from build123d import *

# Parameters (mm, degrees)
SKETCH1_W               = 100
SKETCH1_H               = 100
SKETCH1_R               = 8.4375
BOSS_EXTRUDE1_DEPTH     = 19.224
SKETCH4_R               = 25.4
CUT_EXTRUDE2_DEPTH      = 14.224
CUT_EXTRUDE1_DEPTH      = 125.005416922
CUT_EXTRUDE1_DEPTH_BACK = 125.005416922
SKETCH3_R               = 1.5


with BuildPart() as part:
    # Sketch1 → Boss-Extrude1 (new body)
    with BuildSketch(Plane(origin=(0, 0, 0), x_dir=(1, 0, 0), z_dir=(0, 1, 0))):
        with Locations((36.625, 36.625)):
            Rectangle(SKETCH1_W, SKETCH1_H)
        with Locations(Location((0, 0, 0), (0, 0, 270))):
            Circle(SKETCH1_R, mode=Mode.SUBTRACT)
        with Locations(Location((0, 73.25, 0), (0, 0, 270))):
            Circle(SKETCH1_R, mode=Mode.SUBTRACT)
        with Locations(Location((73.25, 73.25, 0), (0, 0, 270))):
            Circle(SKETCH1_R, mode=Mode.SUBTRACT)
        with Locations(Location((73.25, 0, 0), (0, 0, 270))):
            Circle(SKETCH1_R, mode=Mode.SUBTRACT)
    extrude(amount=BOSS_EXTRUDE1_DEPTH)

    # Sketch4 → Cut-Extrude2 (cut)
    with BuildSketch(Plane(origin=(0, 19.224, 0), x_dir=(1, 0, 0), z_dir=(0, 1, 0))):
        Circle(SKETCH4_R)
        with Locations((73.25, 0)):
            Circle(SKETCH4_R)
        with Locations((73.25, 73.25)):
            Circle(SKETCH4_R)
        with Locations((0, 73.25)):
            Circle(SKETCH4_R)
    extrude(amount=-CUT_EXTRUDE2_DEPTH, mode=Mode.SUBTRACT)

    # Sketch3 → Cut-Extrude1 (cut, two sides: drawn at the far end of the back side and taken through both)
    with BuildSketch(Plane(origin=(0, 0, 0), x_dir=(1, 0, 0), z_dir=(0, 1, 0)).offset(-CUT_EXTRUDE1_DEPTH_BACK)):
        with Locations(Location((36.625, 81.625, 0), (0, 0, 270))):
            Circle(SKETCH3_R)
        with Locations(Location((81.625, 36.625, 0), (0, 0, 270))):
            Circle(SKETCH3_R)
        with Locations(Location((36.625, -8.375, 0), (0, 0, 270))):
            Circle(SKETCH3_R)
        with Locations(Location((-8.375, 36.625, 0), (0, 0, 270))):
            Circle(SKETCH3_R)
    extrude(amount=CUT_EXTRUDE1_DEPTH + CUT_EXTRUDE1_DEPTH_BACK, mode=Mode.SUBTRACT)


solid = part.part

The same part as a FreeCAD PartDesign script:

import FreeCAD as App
import Part
import Sketcher
from FreeCAD import Vector
Q = App.Units.Quantity

doc = App.newDocument("Part")
body = doc.addObject("PartDesign::Body", "Body")

sketch1 = doc.addObject("Sketcher::SketchObject", "Sketch")
body.addObject(sketch1)
sketch1.AttachmentSupport = (doc.XZ_Plane, [""])
sketch1.MapMode = "FlatFace"
sketch1.addGeometry(Part.LineSegment(Vector(-13, -87, 0), Vector(-13, 13, 0)), False)
sketch1.addGeometry(Part.LineSegment(Vector(-13, 13, 0), Vector(87, 13, 0)), False)
sketch1.addGeometry(Part.LineSegment(Vector(87, 13, 0), Vector(87, -87, 0)), False)
sketch1.addGeometry(Part.LineSegment(Vector(87, -87, 0), Vector(-13, -87, 0)), False)
sketch1.addGeometry(Part.Circle(Vector(0, 0, 0), Vector(0, 0, 1), 8), False)
sketch1.addGeometry(Part.Circle(Vector(73, 0, 0), Vector(0, 0, 1), 8), False)
sketch1.addGeometry(Part.Circle(Vector(0, -73, 0), Vector(0, 0, 1), 8), False)
sketch1.addGeometry(Part.Circle(Vector(73, -73, 0), Vector(0, 0, 1), 8), False)
sketch1.addConstraint(Sketcher.Constraint("Coincident", 0, 2, 1, 1))
sketch1.addConstraint(Sketcher.Constraint("Coincident", 1, 2, 2, 1))
sketch1.addConstraint(Sketcher.Constraint("Coincident", 2, 2, 3, 1))
sketch1.addConstraint(Sketcher.Constraint("Coincident", 3, 2, 0, 1))
sketch1.addConstraint(Sketcher.Constraint("Vertical", 0))
sketch1.addConstraint(Sketcher.Constraint("Horizontal", 1))
sketch1.addConstraint(Sketcher.Constraint("Vertical", 2))
sketch1.addConstraint(Sketcher.Constraint("Horizontal", 3))
sketch1.addConstraint(Sketcher.Constraint("Coincident", 4, 3, -1, 1))
sketch1.addConstraint(Sketcher.Constraint("Equal", 4, 5))
sketch1.addConstraint(Sketcher.Constraint("Equal", 5, 6))
sketch1.addConstraint(Sketcher.Constraint("Equal", 6, 7))
sketch1.addConstraint(Sketcher.Constraint("PointOnObject", 5, 3, -1))
sketch1.addConstraint(Sketcher.Constraint("PointOnObject", 6, 3, -2))
sketch1.addConstraint(Sketcher.Constraint("Horizontal", 6, 3, 7, 3))
sketch1.addConstraint(Sketcher.Constraint("Vertical", 5, 3, 7, 3))
sketch1.addConstraint(Sketcher.Constraint("Equal", 3, 0))
sketch1.addConstraint(Sketcher.Constraint("DistanceX", 1, 1, 1, 2, Q("100 mm")))
sketch1.addConstraint(Sketcher.Constraint("Diameter", 4, Q("16.875 mm")))
sketch1.addConstraint(Sketcher.Constraint("DistanceX", -1, 1, 5, 3, Q("73.25 mm")))
sketch1.addConstraint(Sketcher.Constraint("DistanceY", 6, 3, -1, 1, Q("73.25 mm")))
sketch1.addConstraint(Sketcher.Constraint("DistanceX", 0, 2, -1, 1, Q("13.375 mm")))
sketch1.addConstraint(Sketcher.Constraint("DistanceY", -1, 1, 0, 2, Q("13.375 mm")))
pad1 = doc.addObject("PartDesign::Pad", "Pad")
body.addObject(pad1)
pad1.Profile = sketch1
pad1.Length = 19.224
pad1.Reversed = True

sketch2 = doc.addObject("Sketcher::SketchObject", "Sketch001")
body.addObject(sketch2)
sketch2.AttachmentSupport = (doc.XZ_Plane, [""])
sketch2.MapMode = "FlatFace"
sketch2.AttachmentOffset = App.Placement(Vector(0, 0, -19.224), App.Rotation())
sketch2.addGeometry(Part.Circle(Vector(0, 0, 0), Vector(0, 0, 1), 25), False)
sketch2.addGeometry(Part.Circle(Vector(73, 0, 0), Vector(0, 0, 1), 25), False)
sketch2.addGeometry(Part.Circle(Vector(73, -73, 0), Vector(0, 0, 1), 25), False)
sketch2.addGeometry(Part.Circle(Vector(0, -73, 0), Vector(0, 0, 1), 25), False)
sketch2.addConstraint(Sketcher.Constraint("Coincident", 0, 3, -1, 1))
sketch2.addConstraint(Sketcher.Constraint("Equal", 0, 1))
sketch2.addConstraint(Sketcher.Constraint("Equal", 1, 2))
sketch2.addConstraint(Sketcher.Constraint("Equal", 2, 3))
sketch2.addConstraint(Sketcher.Constraint("PointOnObject", 1, 3, -1))
sketch2.addConstraint(Sketcher.Constraint("PointOnObject", 3, 3, -2))
sketch2.addConstraint(Sketcher.Constraint("Horizontal", 2, 3, 3, 3))
sketch2.addConstraint(Sketcher.Constraint("Vertical", 1, 3, 2, 3))
sketch2.addConstraint(Sketcher.Constraint("Diameter", 0, Q("50.8 mm")))
sketch2.addConstraint(Sketcher.Constraint("DistanceX", -1, 1, 1, 3, Q("73.25 mm")))
sketch2.addConstraint(Sketcher.Constraint("DistanceY", 2, 3, -1, 1, Q("73.25 mm")))
pocket1 = doc.addObject("PartDesign::Pocket", "Pocket")
body.addObject(pocket1)
pocket1.Profile = sketch2
pocket1.Length = 14.224
pocket1.Reversed = True

sketch3 = doc.addObject("Sketcher::SketchObject", "Sketch002")
body.addObject(sketch3)
sketch3.AttachmentSupport = (doc.XZ_Plane, [""])
sketch3.MapMode = "FlatFace"
sketch3.addGeometry(Part.Circle(Vector(36.6, -81.6, 0), Vector(0, 0, 1), 1.5), False)
sketch3.addGeometry(Part.Circle(Vector(81.6, -36.6, 0), Vector(0, 0, 1), 1.5), False)
sketch3.addGeometry(Part.Circle(Vector(36.6, 8.4, 0), Vector(0, 0, 1), 1.5), False)
sketch3.addGeometry(Part.Circle(Vector(-8.4, -36.6, 0), Vector(0, 0, 1), 1.5), False)
sketch3.addConstraint(Sketcher.Constraint("Equal", 0, 1))
sketch3.addConstraint(Sketcher.Constraint("Equal", 1, 2))
sketch3.addConstraint(Sketcher.Constraint("Equal", 2, 3))
sketch3.addConstraint(Sketcher.Constraint("Horizontal", 1, 3, 3, 3))
sketch3.addConstraint(Sketcher.Constraint("Vertical", 0, 3, 2, 3))
sketch3.addConstraint(Sketcher.Constraint("Diameter", 0, Q("3 mm")))
sketch3.addConstraint(Sketcher.Constraint("DistanceX", 0, 3, 1, 3, Q("45 mm")))
sketch3.addConstraint(Sketcher.Constraint("DistanceY", 0, 3, 1, 3, Q("45 mm")))
sketch3.addConstraint(Sketcher.Constraint("DistanceY", 1, 3, 2, 3, Q("45 mm")))
sketch3.addConstraint(Sketcher.Constraint("DistanceX", 3, 3, 0, 3, Q("45 mm")))
sketch3.addConstraint(Sketcher.Constraint("DistanceX", -1, 1, 0, 3, Q("36.625 mm")))
sketch3.addConstraint(Sketcher.Constraint("DistanceY", 0, 3, -1, 1, Q("81.625 mm")))
pocket2 = doc.addObject("PartDesign::Pocket", "Pocket001")
body.addObject(pocket2)
pocket2.Profile = sketch3
pocket2.Type = "ThroughAll"
pocket2.Midplane = True

doc.recompute()
